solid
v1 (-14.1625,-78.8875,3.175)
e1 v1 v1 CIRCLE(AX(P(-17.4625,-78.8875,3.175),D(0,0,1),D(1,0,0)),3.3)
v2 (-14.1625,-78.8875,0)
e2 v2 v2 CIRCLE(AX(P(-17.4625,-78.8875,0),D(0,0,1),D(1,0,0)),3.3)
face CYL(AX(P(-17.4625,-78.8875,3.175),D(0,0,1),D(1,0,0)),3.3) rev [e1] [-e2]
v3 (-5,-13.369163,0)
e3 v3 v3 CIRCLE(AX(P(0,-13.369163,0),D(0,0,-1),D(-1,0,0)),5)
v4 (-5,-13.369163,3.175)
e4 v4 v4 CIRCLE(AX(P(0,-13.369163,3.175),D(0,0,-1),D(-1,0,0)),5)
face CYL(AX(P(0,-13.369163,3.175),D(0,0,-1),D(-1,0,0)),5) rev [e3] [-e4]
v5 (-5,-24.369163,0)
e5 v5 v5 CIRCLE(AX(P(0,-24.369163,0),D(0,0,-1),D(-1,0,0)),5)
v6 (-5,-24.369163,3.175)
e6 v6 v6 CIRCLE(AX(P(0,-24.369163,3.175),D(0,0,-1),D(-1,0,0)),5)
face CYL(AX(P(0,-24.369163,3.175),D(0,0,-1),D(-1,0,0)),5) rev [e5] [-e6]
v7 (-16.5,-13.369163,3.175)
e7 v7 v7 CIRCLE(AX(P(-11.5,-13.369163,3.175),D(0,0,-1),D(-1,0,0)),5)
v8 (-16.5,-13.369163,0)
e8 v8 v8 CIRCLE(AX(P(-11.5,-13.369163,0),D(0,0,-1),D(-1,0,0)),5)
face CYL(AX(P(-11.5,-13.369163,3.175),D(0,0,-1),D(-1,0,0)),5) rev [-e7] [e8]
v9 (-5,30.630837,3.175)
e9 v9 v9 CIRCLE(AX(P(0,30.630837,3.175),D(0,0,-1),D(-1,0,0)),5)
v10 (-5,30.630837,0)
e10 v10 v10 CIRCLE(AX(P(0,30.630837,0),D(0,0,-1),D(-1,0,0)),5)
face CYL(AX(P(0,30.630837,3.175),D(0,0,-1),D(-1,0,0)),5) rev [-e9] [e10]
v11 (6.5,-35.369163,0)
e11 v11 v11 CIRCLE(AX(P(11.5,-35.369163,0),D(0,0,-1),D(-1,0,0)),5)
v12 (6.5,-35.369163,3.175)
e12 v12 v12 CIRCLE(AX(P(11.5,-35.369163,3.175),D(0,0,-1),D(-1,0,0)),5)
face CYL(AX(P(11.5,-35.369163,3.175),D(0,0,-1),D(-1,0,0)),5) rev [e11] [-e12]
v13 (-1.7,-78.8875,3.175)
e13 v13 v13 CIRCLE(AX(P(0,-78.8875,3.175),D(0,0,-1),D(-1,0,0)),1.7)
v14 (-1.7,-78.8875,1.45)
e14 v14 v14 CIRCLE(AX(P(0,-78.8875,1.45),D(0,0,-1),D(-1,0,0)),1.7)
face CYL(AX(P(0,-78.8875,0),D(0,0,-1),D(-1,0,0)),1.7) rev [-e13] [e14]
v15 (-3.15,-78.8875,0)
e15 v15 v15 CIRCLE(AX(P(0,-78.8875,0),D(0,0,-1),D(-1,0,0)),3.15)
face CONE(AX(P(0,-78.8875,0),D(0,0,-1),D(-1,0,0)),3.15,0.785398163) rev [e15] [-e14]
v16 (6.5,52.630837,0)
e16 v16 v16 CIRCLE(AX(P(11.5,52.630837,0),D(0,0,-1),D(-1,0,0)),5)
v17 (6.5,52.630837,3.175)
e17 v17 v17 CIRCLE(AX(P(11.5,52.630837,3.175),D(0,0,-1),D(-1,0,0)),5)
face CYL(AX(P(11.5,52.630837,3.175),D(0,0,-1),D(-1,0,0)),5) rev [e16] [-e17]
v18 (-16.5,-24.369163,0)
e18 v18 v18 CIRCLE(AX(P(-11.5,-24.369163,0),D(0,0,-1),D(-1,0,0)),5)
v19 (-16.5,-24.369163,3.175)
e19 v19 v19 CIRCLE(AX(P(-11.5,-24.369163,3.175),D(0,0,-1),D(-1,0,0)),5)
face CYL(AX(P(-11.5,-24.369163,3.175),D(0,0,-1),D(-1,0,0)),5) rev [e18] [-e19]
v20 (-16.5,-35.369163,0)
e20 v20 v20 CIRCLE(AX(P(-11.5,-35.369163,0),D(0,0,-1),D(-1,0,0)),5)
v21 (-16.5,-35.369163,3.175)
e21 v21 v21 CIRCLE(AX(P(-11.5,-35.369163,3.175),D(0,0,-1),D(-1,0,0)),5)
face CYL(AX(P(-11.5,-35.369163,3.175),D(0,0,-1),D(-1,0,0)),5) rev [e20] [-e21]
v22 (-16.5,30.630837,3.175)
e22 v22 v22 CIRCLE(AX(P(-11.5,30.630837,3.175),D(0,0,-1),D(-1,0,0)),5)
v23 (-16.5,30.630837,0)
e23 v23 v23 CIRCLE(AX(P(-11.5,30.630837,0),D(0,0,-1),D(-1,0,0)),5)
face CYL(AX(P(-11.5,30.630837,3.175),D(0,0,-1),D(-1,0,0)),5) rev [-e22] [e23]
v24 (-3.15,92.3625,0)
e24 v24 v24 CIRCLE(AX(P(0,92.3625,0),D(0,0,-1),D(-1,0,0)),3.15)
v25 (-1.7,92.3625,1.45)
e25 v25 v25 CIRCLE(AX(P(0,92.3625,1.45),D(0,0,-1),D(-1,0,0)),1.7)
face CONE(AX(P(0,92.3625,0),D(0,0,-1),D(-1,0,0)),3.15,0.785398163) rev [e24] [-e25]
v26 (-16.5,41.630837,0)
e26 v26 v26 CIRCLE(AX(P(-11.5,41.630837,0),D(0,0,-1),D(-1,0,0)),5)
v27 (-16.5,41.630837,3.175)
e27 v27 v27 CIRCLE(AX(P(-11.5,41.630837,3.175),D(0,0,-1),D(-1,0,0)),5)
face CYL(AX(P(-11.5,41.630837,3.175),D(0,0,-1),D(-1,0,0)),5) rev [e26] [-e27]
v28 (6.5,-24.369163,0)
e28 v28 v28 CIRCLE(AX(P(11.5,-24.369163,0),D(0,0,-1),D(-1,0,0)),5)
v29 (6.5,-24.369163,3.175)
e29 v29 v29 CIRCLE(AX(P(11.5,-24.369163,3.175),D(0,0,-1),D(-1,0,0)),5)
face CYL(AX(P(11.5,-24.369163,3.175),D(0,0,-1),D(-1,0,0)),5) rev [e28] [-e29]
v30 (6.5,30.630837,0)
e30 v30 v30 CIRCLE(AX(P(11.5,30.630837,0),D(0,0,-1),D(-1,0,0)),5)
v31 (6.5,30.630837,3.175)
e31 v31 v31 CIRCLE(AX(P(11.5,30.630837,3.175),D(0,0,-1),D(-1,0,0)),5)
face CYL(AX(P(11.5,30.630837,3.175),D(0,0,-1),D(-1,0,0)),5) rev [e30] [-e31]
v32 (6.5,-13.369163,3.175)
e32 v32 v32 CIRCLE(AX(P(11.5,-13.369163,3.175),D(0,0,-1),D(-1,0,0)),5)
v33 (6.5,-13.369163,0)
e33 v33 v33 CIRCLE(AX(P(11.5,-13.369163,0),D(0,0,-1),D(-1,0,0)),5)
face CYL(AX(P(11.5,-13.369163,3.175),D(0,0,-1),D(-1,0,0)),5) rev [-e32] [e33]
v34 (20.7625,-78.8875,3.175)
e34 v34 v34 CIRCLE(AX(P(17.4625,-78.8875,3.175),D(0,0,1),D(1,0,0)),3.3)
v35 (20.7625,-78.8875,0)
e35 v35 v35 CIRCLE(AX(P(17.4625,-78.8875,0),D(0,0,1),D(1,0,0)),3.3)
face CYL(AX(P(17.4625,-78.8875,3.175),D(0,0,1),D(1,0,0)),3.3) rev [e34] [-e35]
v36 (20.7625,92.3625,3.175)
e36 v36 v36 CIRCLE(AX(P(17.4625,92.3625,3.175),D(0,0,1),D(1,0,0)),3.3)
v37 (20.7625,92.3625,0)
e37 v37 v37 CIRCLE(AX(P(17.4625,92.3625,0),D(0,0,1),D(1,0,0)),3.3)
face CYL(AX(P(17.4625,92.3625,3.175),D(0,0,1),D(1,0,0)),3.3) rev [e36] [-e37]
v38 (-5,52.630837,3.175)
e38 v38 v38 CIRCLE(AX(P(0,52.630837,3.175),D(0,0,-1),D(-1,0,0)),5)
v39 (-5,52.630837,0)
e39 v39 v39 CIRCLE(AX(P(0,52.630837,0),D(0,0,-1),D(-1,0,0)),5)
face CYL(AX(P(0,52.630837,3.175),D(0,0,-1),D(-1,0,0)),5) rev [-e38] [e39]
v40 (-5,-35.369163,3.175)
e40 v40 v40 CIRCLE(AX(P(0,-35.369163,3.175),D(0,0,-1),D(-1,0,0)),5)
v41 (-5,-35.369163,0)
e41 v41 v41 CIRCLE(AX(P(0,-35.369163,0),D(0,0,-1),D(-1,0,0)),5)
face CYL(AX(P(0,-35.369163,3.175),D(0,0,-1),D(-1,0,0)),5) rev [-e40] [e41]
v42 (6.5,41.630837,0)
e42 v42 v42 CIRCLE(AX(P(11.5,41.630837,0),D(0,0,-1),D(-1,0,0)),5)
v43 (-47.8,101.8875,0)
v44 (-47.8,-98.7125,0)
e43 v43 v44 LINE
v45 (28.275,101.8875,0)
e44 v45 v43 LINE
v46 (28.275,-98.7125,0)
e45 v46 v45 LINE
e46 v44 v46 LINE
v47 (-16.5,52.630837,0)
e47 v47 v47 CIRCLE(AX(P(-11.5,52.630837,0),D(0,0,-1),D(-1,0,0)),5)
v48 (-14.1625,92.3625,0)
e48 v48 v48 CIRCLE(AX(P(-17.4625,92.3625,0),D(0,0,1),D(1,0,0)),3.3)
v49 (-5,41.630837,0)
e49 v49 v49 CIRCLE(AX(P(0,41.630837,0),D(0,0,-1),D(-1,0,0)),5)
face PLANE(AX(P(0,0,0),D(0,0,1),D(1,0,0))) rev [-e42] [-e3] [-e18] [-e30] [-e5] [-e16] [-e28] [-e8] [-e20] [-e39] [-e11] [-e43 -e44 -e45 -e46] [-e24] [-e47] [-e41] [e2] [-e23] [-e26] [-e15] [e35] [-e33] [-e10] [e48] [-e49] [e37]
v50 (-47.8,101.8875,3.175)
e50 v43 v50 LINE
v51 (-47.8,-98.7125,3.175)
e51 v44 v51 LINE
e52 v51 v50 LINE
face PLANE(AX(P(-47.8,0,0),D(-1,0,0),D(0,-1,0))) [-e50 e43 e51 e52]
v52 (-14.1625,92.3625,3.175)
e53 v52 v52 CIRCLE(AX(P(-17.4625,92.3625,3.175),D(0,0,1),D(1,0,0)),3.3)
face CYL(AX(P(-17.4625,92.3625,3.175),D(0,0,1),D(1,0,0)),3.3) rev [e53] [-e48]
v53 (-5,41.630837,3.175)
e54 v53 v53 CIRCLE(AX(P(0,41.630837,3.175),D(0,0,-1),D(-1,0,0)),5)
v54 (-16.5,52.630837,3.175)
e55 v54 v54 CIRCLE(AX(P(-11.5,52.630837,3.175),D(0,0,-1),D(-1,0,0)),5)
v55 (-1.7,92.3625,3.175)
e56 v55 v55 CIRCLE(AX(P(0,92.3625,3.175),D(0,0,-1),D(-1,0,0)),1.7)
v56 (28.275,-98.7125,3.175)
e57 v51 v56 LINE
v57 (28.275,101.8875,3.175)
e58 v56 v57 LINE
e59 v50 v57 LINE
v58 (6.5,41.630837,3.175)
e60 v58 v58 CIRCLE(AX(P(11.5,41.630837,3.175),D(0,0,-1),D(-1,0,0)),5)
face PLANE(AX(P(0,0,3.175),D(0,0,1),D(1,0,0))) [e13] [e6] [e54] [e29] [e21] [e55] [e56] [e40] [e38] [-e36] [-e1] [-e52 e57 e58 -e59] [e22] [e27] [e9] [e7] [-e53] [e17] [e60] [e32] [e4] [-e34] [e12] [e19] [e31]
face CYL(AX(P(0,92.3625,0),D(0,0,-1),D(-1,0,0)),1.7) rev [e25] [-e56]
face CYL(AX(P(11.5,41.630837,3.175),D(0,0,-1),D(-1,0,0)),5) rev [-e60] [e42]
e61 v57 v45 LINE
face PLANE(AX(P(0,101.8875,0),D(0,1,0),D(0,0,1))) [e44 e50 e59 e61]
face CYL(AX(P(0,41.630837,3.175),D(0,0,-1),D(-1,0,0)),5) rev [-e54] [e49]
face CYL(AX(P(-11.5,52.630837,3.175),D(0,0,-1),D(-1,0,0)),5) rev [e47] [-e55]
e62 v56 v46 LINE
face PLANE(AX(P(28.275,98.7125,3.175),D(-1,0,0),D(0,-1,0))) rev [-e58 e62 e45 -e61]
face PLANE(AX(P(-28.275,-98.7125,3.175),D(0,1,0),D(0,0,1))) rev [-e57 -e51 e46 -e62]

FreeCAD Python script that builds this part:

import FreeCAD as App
import Part
import Sketcher
Q = App.Units.Quantity

doc = App.newDocument("Part")
body = doc.addObject("PartDesign::Body", "Body")

# Sketch on XY plane
sketch1 = doc.addObject("Sketcher::SketchObject", "Sketch")
body.addObject(sketch1)
sketch1.AttachmentSupport = (doc.XY_Plane, [""])
sketch1.MapMode = "FlatFace"
sketch1.addGeometry([
    Part.LineSegment(App.Vector(-28, 99, 0), App.Vector(-28, -99, 0)),
    Part.LineSegment(App.Vector(-28, -99, 0), App.Vector(28, -99, 0)),
    Part.LineSegment(App.Vector(28, -99, 0), App.Vector(28, 99, 0)),
    Part.LineSegment(App.Vector(28, 99, 0), App.Vector(-28, 99, 0)),
], False)
sketch1.addConstraint([
    Sketcher.Constraint("Coincident", 0, 2, 1, 1),
    Sketcher.Constraint("Coincident", 1, 2, 2, 1),
    Sketcher.Constraint("Coincident", 2, 2, 3, 1),
    Sketcher.Constraint("Coincident", 3, 2, 0, 1),
    Sketcher.Constraint("Vertical", 0),
    Sketcher.Constraint("Horizontal", 1),
    Sketcher.Constraint("Vertical", 2),
    Sketcher.Constraint("Horizontal", 3),
    Sketcher.Constraint("Symmetric", 0, 2, 2, 2, -1, 1),
    Sketcher.Constraint("DistanceX", 1, 1, 1, 2, Q("56.55 mm")),
    Sketcher.Constraint("DistanceY", 0, 2, 0, 1, Q("197.425 mm")),
])
pad1 = doc.addObject("PartDesign::Pad", "Pad")
body.addObject(pad1)
pad1.Profile = sketch1
pad1.Length = 3.175

# Sketch on XY plane
sketch2 = doc.addObject("Sketcher::SketchObject", "Sketch001")
body.addObject(sketch2)
sketch2.AttachmentSupport = (doc.XY_Plane, [""])
sketch2.MapMode = "FlatFace"
sketch2.addGeometry([
    Part.Circle(App.Vector(12, 31, 0), App.Vector(0, 0, 1), 5),  # 0
    Part.Circle(App.Vector(12, 53, 0), App.Vector(0, 0, 1), 5),  # 1
    Part.Circle(App.Vector(12, 42, 0), App.Vector(0, 0, 1), 5),  # 2
    Part.Circle(App.Vector(0, 53, 0), App.Vector(0, 0, 1), 5),  # 3
    Part.Circle(App.Vector(0, 42, 0), App.Vector(0, 0, 1), 5),  # 4
    Part.Circle(App.Vector(0, 31, 0), App.Vector(0, 0, 1), 5),  # 5
    Part.Circle(App.Vector(-12, 31, 0), App.Vector(0, 0, 1), 5),  # 6
    Part.Circle(App.Vector(-12, 42, 0), App.Vector(0, 0, 1), 5),  # 7
    Part.Circle(App.Vector(-12, 53, 0), App.Vector(0, 0, 1), 5),  # 8
    Part.Circle(App.Vector(12, -35, 0), App.Vector(0, 0, 1), 5),  # 9
    Part.Circle(App.Vector(12, -13, 0), App.Vector(0, 0, 1), 5),  # 10
    Part.Circle(App.Vector(12, -24, 0), App.Vector(0, 0, 1), 5),  # 11
    Part.Circle(App.Vector(0, -13, 0), App.Vector(0, 0, 1), 5),  # 12
    Part.Circle(App.Vector(0, -24, 0), App.Vector(0, 0, 1), 5),  # 13
    Part.Circle(App.Vector(0, -35, 0), App.Vector(0, 0, 1), 5),  # 14
    Part.Circle(App.Vector(-12, -35, 0), App.Vector(0, 0, 1), 5),  # 15
    Part.Circle(App.Vector(-12, -13, 0), App.Vector(0, 0, 1), 5),  # 16
    Part.Circle(App.Vector(-12, -24, 0), App.Vector(0, 0, 1), 5),  # 17
], False)
sketch2.addConstraint([
    Sketcher.Constraint("Equal", 0, 1),
    Sketcher.Constraint("Equal", 1, 2),
    Sketcher.Constraint("Equal", 2, 3),
    Sketcher.Constraint("Equal", 3, 4),
    Sketcher.Constraint("Equal", 4, 5),
    Sketcher.Constraint("Equal", 5, 6),
    Sketcher.Constraint("Equal", 6, 7),
    Sketcher.Constraint("Equal", 7, 8),
    Sketcher.Constraint("Equal", 8, 9),
    Sketcher.Constraint("Equal", 9, 10),
    Sketcher.Constraint("Equal", 10, 11),
    Sketcher.Constraint("Equal", 11, 12),
    Sketcher.Constraint("Equal", 12, 13),
    Sketcher.Constraint("Equal", 13, 14),
    Sketcher.Constraint("Equal", 14, 15),
    Sketcher.Constraint("Equal", 15, 16),
    Sketcher.Constraint("Equal", 16, 17),
    Sketcher.Constraint("Symmetric", 0, 3, 6, 3, -2),
    Sketcher.Constraint("Symmetric", 2, 3, 7, 3, -2),
    Sketcher.Constraint("Symmetric", 1, 3, 8, 3, -2),
    Sketcher.Constraint("Symmetric", 9, 3, 15, 3, -2),
    Sketcher.Constraint("Symmetric", 10, 3, 16, 3, -2),
    Sketcher.Constraint("Symmetric", 11, 3, 17, 3, -2),
    Sketcher.Constraint("PointOnObject", 3, 3, -2),
    Sketcher.Constraint("PointOnObject", 4, 3, -2),
    Sketcher.Constraint("PointOnObject", 5, 3, -2),
    Sketcher.Constraint("PointOnObject", 12, 3, -2),
    Sketcher.Constraint("PointOnObject", 13, 3, -2),
    Sketcher.Constraint("PointOnObject", 14, 3, -2),
    Sketcher.Constraint("Horizontal", 1, 3, 3, 3),
    Sketcher.Constraint("Horizontal", 2, 3, 4, 3),
    Sketcher.Constraint("Horizontal", 0, 3, 5, 3),
    Sketcher.Constraint("Horizontal", 10, 3, 12, 3),
    Sketcher.Constraint("Horizontal", 11, 3, 13, 3),
    Sketcher.Constraint("Horizontal", 9, 3, 14, 3),
    Sketcher.Constraint("Vertical", 0, 3, 1, 3),
    Sketcher.Constraint("Vertical", 1, 3, 2, 3),
    Sketcher.Constraint("Vertical", 2, 3, 9, 3),
    Sketcher.Constraint("Vertical", 9, 3, 10, 3),
    Sketcher.Constraint("Vertical", 10, 3, 11, 3),
    Sketcher.Constraint("Diameter", 0, Q("10 mm")),
    Sketcher.Constraint("DistanceY", 0, 3, 1, 3, Q("22 mm")),
    Sketcher.Constraint("DistanceY", 2, 3, 1, 3, Q("11 mm")),
    Sketcher.Constraint("DistanceX", 6, 3, 0, 3, Q("23 mm")),
    Sketcher.Constraint("DistanceY", 9, 3, 0, 3, Q("66 mm")),
    Sketcher.Constraint("DistanceY", 9, 3, 10, 3, Q("22 mm")),
    Sketcher.Constraint("DistanceY", 9, 3, 11, 3, Q("11 mm")),
    Sketcher.Constraint("DistanceY", -1, 1, 0, 3, Q("30.630837 mm")),
])
pocket1 = doc.addObject("PartDesign::Pocket", "Pocket")
body.addObject(pocket1)
pocket1.Profile = sketch2
pocket1.Type = "ThroughAll"
pocket1.Reversed = True

# Sketch on YZ plane
sketch3 = doc.addObject("Sketcher::SketchObject", "Sketch002")
body.addObject(sketch3)
sketch3.AttachmentSupport = (doc.YZ_Plane, [""])
sketch3.MapMode = "FlatFace"
sketch3.AttachmentOffset = App.Placement(App.Vector(0, 0, -28.275), App.Rotation())
sketch3.addGeometry([
    Part.LineSegment(App.Vector(98.7, 0, 0), App.Vector(-98.7, 0, 0)),
    Part.LineSegment(App.Vector(-98.7, 0, 0), App.Vector(-98.7, 3.2, 0)),
    Part.LineSegment(App.Vector(-98.7, 3.2, 0), App.Vector(98.7, 3.2, 0)),
    Part.LineSegment(App.Vector(98.7, 3.2, 0), App.Vector(98.7, 0, 0)),
], False)
sketch3.addConstraint([
    Sketcher.Constraint("Coincident", 0, 2, 1, 1),
    Sketcher.Constraint("Coincident", 1, 2, 2, 1),
    Sketcher.Constraint("Coincident", 2, 2, 3, 1),
    Sketcher.Constraint("Coincident", 3, 2, 0, 1),
    Sketcher.Constraint("Horizontal", 0),
    Sketcher.Constraint("Vertical", 1),
    Sketcher.Constraint("Horizontal", 2),
    Sketcher.Constraint("Vertical", 3),
    Sketcher.Constraint("Symmetric", 0, 2, 3, 2, -1, 1),
    Sketcher.Constraint("DistanceX", 0, 2, 0, 1, Q("197.425 mm")),
    Sketcher.Constraint("DistanceY", 1, 1, 1, 2, Q("3.175 mm")),
])
pad2 = doc.addObject("PartDesign::Pad", "Pad001")
body.addObject(pad2)
pad2.Profile = sketch3
pad2.Length = 19.525
pad2.Reversed = True

# Sketch on XZ plane
sketch4 = doc.addObject("Sketcher::SketchObject", "Sketch003")
body.addObject(sketch4)
sketch4.AttachmentSupport = (doc.XZ_Plane, [""])
sketch4.MapMode = "FlatFace"
sketch4.AttachmentOffset = App.Placement(App.Vector(0, 0, -98.7125), App.Rotation())
sketch4.addGeometry([
    Part.LineSegment(App.Vector(-47.8, 0, 0), App.Vector(-47.8, 3.2, 0)),
    Part.LineSegment(App.Vector(-47.8, 3.2, 0), App.Vector(28.3, 3.2, 0)),
    Part.LineSegment(App.Vector(28.3, 3.2, 0), App.Vector(28.3, 0, 0)),
    Part.LineSegment(App.Vector(28.3, 0, 0), App.Vector(-47.8, 0, 0)),
], False)
sketch4.addConstraint([
    Sketcher.Constraint("Coincident", 0, 2, 1, 1),
    Sketcher.Constraint("Coincident", 1, 2, 2, 1),
    Sketcher.Constraint("Coincident", 2, 2, 3, 1),
    Sketcher.Constraint("Coincident", 3, 2, 0, 1),
    Sketcher.Constraint("Vertical", 0),
    Sketcher.Constraint("Horizontal", 1),
    Sketcher.Constraint("Vertical", 2),
    Sketcher.Constraint("Horizontal", 3),
    Sketcher.Constraint("PointOnObject", 2, 2, -1),
    Sketcher.Constraint("DistanceX", 0, 2, -1, 1, Q("47.8 mm")),
    Sketcher.Constraint("DistanceX", 1, 1, 1, 2, Q("76.075 mm")),
    Sketcher.Constraint("DistanceY", 0, 1, 0, 2, Q("3.175 mm")),
])
pad3 = doc.addObject("PartDesign::Pad", "Pad002")
body.addObject(pad3)
pad3.Profile = sketch4
pad3.Length = 3.175
pad3.Reversed = True

# Sketch on XY plane
sketch5 = doc.addObject("Sketcher::SketchObject", "Sketch004")
body.addObject(sketch5)
sketch5.AttachmentSupport = (doc.XY_Plane, [""])
sketch5.MapMode = "FlatFace"
sketch5.AttachmentOffset = App.Placement(App.Vector(0, 0, 3.175), App.Rotation())
sketch5.addGeometry([
    Part.Circle(App.Vector(-17.5, 92.4, 0), App.Vector(0, 0, 1), 3.3),
    Part.Circle(App.Vector(17.5, 92.4, 0), App.Vector(0, 0, 1), 3.3),
    Part.Circle(App.Vector(17.5, -78.9, 0), App.Vector(0, 0, 1), 3.3),
    Part.Circle(App.Vector(-17.5, -78.9, 0), App.Vector(0, 0, 1), 3.3),
], False)
sketch5.addConstraint([
    Sketcher.Constraint("Equal", 0, 1),
    Sketcher.Constraint("Equal", 1, 2),
    Sketcher.Constraint("Equal", 2, 3),
    Sketcher.Constraint("Symmetric", 0, 3, 1, 3, -2),
    Sketcher.Constraint("Symmetric", 2, 3, 3, 3, -2),
    Sketcher.Constraint("Vertical", 1, 3, 2, 3),
    Sketcher.Constraint("Diameter", 0, Q("6.6 mm")),
    Sketcher.Constraint("DistanceY", 2, 3, 1, 3, Q("171.25 mm")),
    Sketcher.Constraint("DistanceX", 0, 3, 1, 3, Q("34.925 mm")),
    Sketcher.Constraint("DistanceY", -1, 1, 0, 3, Q("92.3625 mm")),
])
doc.recompute()
hole = doc.addObject("PartDesign::Hole", "Hole")
body.addObject(hole)
hole.Profile = sketch5
hole.ThreadType = "None"
hole.Diameter = 6.6
hole.DepthType = "ThroughAll"

# Sketch on XY plane
sketch6 = doc.addObject("Sketcher::SketchObject", "Sketch005")
body.addObject(sketch6)
sketch6.AttachmentSupport = (doc.XY_Plane, [""])
sketch6.MapMode = "FlatFace"
sketch6.addGeometry([
    Part.Circle(App.Vector(0, -78.9, 0), App.Vector(0, 0, 1), 1.7),
    Part.Circle(App.Vector(0, 92.4, 0), App.Vector(0, 0, 1), 1.7),
], False)
sketch6.addConstraint([
    Sketcher.Constraint("Equal", 0, 1),
    Sketcher.Constraint("PointOnObject", 0, 3, -2),
    Sketcher.Constraint("PointOnObject", 1, 3, -2),
    Sketcher.Constraint("Diameter", 0, Q("3.4 mm")),
    Sketcher.Constraint("DistanceY", 0, 3, 1, 3, Q("171.25 mm")),
    Sketcher.Constraint("DistanceY", 0, 3, -1, 1, Q("78.8875 mm")),
])
doc.recompute()
hole2 = doc.addObject("PartDesign::Hole", "Hole001")
body.addObject(hole2)
hole2.Profile = sketch6
hole2.ThreadType = "None"
hole2.Diameter = 3.4
hole2.DepthType = "ThroughAll"
hole2.HoleCutType = "Countersink"
hole2.HoleCutDiameter = 6.3
hole2.HoleCutCountersinkAngle = 90
hole2.Reversed = True

doc.recompute()
